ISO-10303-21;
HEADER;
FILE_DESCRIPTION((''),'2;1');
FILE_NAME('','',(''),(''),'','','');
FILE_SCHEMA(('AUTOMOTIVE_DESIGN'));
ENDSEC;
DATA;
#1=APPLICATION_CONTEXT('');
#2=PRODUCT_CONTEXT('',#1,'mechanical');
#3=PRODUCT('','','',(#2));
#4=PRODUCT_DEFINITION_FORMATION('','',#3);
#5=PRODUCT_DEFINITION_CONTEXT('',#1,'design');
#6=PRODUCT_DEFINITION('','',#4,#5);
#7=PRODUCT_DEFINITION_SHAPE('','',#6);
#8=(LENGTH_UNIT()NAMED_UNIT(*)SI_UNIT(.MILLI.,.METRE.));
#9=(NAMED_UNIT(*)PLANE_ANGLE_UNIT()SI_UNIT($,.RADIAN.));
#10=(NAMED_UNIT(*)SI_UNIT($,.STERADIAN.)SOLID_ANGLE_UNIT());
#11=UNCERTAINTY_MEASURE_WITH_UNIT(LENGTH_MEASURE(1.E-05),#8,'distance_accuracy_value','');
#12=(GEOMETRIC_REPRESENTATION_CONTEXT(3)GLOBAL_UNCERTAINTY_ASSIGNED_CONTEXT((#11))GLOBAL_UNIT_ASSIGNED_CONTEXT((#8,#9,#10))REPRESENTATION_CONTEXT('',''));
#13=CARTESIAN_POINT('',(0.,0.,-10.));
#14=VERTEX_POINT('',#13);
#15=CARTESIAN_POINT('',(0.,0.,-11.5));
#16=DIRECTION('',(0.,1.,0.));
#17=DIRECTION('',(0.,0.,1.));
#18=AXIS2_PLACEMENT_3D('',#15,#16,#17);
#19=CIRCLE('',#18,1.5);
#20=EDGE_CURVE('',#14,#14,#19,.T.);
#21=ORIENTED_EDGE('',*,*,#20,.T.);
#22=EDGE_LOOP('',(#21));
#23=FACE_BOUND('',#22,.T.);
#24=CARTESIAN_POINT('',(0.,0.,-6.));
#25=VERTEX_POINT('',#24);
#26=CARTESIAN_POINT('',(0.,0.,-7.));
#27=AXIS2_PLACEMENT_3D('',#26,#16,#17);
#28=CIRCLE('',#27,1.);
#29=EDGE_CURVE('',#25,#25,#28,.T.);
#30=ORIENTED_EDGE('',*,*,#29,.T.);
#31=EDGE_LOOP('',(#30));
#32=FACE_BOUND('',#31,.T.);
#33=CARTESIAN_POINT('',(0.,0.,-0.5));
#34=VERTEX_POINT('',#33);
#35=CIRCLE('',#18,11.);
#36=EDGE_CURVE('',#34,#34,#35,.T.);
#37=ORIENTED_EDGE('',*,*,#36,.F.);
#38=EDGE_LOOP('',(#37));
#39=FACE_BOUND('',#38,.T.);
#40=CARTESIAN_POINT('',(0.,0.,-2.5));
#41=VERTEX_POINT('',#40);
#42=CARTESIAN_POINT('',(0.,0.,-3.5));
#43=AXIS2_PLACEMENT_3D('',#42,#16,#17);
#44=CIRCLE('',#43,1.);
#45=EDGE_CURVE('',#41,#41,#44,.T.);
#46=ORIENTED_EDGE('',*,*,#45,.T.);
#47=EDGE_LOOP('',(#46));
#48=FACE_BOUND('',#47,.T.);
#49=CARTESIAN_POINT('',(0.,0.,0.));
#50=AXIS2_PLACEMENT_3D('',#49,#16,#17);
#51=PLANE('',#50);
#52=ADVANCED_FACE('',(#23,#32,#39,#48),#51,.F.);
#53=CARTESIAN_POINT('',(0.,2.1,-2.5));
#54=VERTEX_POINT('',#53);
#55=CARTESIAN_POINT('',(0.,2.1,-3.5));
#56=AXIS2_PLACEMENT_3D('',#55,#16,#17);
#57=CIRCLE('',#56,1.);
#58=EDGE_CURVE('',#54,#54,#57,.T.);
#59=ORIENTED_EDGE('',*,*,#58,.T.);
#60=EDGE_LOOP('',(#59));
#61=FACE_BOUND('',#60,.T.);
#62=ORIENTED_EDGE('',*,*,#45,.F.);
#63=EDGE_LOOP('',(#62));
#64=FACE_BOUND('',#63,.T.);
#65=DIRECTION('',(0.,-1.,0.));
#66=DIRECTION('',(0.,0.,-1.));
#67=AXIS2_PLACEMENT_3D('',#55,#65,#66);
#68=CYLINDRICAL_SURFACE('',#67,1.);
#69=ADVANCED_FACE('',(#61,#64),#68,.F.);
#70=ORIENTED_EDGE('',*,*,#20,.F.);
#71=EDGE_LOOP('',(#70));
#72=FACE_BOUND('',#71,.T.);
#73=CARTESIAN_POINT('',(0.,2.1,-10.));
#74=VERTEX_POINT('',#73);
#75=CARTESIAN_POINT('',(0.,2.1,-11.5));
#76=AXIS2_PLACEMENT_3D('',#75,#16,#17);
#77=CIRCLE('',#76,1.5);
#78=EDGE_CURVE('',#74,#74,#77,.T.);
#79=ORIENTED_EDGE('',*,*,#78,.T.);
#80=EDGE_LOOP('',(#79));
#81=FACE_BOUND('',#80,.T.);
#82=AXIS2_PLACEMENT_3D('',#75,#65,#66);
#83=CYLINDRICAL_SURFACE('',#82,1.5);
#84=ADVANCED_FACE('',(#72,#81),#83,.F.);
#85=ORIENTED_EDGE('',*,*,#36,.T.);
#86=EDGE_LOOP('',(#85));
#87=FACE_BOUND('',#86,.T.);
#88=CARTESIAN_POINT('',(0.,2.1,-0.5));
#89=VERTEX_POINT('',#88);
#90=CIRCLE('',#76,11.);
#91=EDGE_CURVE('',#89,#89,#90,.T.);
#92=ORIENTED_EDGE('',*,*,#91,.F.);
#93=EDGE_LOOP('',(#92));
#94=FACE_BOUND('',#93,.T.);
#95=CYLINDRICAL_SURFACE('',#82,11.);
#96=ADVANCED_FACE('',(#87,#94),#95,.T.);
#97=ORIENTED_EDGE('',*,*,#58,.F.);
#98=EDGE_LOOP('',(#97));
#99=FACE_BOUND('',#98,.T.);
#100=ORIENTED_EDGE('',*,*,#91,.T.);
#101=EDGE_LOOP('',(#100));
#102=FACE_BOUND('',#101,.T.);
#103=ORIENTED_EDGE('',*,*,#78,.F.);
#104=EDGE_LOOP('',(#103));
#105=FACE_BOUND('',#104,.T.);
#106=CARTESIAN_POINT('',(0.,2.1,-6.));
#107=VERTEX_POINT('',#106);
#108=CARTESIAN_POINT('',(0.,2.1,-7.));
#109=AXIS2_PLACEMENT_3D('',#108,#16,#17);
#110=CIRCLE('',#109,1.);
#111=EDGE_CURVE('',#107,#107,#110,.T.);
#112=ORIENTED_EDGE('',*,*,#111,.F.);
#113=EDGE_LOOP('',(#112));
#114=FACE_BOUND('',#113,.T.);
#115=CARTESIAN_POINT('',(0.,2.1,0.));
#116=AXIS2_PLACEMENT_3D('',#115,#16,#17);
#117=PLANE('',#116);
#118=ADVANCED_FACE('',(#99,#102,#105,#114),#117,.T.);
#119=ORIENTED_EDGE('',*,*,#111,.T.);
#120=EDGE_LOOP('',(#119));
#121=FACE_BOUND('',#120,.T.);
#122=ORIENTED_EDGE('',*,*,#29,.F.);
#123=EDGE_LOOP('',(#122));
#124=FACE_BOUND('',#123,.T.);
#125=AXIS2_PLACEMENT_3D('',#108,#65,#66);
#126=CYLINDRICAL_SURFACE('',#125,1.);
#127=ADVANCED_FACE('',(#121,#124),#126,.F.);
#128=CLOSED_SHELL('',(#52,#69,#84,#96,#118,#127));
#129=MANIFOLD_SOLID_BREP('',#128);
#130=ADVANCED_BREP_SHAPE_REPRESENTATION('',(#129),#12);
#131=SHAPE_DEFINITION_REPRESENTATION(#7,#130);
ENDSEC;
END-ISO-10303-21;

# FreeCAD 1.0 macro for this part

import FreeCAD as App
import Part
import Sketcher
from FreeCAD import Vector
Q = App.Units.Quantity

doc = App.newDocument("Part")
body = doc.addObject("PartDesign::Body", "Body")

# Sketch on XZ plane
sketch1 = body.newObject("Sketcher::SketchObject", "Sketch")
sketch1.AttachmentSupport = (doc.getObject("XZ_Plane"), [""])
sketch1.MapMode = "FlatFace"
sketch1.addGeometry([
    Part.Circle(Vector(0, -11.5, 0), Vector(0, 0, 1), 11),
    Part.Circle(Vector(0, -11.5, 0), Vector(0, 0, 1), 1.5),
    Part.Circle(Vector(0, -7, 0), Vector(0, 0, 1), 1),
    Part.Circle(Vector(0, -3.5, 0), Vector(0, 0, 1), 1),
], False)
sketch1.addConstraint([
    Sketcher.Constraint("Coincident", 1, 3, 0, 3),
    Sketcher.Constraint("Equal", 2, 3),
    Sketcher.Constraint("PointOnObject", 0, 3, -2),
    Sketcher.Constraint("PointOnObject", 2, 3, -2),
    Sketcher.Constraint("PointOnObject", 3, 3, -2),
    Sketcher.Constraint("Diameter", 0, Q("22 mm")),
    Sketcher.Constraint("Diameter", 1, Q("3 mm")),
    Sketcher.Constraint("Diameter", 2, Q("2 mm")),
    Sketcher.Constraint("DistanceY", 2, 3, -1, 1, Q("7 mm")),
    Sketcher.Constraint("DistanceY", 0, 3, 3, 3, Q("8 mm")),
    Sketcher.Constraint("DistanceY", 0, 3, -1, 1, Q("11.5 mm")),
])
pad1 = body.newObject("PartDesign::Pad", "Pad")
pad1.Profile = sketch1
pad1.Length = 2.1
pad1.Reversed = True

doc.recompute()
